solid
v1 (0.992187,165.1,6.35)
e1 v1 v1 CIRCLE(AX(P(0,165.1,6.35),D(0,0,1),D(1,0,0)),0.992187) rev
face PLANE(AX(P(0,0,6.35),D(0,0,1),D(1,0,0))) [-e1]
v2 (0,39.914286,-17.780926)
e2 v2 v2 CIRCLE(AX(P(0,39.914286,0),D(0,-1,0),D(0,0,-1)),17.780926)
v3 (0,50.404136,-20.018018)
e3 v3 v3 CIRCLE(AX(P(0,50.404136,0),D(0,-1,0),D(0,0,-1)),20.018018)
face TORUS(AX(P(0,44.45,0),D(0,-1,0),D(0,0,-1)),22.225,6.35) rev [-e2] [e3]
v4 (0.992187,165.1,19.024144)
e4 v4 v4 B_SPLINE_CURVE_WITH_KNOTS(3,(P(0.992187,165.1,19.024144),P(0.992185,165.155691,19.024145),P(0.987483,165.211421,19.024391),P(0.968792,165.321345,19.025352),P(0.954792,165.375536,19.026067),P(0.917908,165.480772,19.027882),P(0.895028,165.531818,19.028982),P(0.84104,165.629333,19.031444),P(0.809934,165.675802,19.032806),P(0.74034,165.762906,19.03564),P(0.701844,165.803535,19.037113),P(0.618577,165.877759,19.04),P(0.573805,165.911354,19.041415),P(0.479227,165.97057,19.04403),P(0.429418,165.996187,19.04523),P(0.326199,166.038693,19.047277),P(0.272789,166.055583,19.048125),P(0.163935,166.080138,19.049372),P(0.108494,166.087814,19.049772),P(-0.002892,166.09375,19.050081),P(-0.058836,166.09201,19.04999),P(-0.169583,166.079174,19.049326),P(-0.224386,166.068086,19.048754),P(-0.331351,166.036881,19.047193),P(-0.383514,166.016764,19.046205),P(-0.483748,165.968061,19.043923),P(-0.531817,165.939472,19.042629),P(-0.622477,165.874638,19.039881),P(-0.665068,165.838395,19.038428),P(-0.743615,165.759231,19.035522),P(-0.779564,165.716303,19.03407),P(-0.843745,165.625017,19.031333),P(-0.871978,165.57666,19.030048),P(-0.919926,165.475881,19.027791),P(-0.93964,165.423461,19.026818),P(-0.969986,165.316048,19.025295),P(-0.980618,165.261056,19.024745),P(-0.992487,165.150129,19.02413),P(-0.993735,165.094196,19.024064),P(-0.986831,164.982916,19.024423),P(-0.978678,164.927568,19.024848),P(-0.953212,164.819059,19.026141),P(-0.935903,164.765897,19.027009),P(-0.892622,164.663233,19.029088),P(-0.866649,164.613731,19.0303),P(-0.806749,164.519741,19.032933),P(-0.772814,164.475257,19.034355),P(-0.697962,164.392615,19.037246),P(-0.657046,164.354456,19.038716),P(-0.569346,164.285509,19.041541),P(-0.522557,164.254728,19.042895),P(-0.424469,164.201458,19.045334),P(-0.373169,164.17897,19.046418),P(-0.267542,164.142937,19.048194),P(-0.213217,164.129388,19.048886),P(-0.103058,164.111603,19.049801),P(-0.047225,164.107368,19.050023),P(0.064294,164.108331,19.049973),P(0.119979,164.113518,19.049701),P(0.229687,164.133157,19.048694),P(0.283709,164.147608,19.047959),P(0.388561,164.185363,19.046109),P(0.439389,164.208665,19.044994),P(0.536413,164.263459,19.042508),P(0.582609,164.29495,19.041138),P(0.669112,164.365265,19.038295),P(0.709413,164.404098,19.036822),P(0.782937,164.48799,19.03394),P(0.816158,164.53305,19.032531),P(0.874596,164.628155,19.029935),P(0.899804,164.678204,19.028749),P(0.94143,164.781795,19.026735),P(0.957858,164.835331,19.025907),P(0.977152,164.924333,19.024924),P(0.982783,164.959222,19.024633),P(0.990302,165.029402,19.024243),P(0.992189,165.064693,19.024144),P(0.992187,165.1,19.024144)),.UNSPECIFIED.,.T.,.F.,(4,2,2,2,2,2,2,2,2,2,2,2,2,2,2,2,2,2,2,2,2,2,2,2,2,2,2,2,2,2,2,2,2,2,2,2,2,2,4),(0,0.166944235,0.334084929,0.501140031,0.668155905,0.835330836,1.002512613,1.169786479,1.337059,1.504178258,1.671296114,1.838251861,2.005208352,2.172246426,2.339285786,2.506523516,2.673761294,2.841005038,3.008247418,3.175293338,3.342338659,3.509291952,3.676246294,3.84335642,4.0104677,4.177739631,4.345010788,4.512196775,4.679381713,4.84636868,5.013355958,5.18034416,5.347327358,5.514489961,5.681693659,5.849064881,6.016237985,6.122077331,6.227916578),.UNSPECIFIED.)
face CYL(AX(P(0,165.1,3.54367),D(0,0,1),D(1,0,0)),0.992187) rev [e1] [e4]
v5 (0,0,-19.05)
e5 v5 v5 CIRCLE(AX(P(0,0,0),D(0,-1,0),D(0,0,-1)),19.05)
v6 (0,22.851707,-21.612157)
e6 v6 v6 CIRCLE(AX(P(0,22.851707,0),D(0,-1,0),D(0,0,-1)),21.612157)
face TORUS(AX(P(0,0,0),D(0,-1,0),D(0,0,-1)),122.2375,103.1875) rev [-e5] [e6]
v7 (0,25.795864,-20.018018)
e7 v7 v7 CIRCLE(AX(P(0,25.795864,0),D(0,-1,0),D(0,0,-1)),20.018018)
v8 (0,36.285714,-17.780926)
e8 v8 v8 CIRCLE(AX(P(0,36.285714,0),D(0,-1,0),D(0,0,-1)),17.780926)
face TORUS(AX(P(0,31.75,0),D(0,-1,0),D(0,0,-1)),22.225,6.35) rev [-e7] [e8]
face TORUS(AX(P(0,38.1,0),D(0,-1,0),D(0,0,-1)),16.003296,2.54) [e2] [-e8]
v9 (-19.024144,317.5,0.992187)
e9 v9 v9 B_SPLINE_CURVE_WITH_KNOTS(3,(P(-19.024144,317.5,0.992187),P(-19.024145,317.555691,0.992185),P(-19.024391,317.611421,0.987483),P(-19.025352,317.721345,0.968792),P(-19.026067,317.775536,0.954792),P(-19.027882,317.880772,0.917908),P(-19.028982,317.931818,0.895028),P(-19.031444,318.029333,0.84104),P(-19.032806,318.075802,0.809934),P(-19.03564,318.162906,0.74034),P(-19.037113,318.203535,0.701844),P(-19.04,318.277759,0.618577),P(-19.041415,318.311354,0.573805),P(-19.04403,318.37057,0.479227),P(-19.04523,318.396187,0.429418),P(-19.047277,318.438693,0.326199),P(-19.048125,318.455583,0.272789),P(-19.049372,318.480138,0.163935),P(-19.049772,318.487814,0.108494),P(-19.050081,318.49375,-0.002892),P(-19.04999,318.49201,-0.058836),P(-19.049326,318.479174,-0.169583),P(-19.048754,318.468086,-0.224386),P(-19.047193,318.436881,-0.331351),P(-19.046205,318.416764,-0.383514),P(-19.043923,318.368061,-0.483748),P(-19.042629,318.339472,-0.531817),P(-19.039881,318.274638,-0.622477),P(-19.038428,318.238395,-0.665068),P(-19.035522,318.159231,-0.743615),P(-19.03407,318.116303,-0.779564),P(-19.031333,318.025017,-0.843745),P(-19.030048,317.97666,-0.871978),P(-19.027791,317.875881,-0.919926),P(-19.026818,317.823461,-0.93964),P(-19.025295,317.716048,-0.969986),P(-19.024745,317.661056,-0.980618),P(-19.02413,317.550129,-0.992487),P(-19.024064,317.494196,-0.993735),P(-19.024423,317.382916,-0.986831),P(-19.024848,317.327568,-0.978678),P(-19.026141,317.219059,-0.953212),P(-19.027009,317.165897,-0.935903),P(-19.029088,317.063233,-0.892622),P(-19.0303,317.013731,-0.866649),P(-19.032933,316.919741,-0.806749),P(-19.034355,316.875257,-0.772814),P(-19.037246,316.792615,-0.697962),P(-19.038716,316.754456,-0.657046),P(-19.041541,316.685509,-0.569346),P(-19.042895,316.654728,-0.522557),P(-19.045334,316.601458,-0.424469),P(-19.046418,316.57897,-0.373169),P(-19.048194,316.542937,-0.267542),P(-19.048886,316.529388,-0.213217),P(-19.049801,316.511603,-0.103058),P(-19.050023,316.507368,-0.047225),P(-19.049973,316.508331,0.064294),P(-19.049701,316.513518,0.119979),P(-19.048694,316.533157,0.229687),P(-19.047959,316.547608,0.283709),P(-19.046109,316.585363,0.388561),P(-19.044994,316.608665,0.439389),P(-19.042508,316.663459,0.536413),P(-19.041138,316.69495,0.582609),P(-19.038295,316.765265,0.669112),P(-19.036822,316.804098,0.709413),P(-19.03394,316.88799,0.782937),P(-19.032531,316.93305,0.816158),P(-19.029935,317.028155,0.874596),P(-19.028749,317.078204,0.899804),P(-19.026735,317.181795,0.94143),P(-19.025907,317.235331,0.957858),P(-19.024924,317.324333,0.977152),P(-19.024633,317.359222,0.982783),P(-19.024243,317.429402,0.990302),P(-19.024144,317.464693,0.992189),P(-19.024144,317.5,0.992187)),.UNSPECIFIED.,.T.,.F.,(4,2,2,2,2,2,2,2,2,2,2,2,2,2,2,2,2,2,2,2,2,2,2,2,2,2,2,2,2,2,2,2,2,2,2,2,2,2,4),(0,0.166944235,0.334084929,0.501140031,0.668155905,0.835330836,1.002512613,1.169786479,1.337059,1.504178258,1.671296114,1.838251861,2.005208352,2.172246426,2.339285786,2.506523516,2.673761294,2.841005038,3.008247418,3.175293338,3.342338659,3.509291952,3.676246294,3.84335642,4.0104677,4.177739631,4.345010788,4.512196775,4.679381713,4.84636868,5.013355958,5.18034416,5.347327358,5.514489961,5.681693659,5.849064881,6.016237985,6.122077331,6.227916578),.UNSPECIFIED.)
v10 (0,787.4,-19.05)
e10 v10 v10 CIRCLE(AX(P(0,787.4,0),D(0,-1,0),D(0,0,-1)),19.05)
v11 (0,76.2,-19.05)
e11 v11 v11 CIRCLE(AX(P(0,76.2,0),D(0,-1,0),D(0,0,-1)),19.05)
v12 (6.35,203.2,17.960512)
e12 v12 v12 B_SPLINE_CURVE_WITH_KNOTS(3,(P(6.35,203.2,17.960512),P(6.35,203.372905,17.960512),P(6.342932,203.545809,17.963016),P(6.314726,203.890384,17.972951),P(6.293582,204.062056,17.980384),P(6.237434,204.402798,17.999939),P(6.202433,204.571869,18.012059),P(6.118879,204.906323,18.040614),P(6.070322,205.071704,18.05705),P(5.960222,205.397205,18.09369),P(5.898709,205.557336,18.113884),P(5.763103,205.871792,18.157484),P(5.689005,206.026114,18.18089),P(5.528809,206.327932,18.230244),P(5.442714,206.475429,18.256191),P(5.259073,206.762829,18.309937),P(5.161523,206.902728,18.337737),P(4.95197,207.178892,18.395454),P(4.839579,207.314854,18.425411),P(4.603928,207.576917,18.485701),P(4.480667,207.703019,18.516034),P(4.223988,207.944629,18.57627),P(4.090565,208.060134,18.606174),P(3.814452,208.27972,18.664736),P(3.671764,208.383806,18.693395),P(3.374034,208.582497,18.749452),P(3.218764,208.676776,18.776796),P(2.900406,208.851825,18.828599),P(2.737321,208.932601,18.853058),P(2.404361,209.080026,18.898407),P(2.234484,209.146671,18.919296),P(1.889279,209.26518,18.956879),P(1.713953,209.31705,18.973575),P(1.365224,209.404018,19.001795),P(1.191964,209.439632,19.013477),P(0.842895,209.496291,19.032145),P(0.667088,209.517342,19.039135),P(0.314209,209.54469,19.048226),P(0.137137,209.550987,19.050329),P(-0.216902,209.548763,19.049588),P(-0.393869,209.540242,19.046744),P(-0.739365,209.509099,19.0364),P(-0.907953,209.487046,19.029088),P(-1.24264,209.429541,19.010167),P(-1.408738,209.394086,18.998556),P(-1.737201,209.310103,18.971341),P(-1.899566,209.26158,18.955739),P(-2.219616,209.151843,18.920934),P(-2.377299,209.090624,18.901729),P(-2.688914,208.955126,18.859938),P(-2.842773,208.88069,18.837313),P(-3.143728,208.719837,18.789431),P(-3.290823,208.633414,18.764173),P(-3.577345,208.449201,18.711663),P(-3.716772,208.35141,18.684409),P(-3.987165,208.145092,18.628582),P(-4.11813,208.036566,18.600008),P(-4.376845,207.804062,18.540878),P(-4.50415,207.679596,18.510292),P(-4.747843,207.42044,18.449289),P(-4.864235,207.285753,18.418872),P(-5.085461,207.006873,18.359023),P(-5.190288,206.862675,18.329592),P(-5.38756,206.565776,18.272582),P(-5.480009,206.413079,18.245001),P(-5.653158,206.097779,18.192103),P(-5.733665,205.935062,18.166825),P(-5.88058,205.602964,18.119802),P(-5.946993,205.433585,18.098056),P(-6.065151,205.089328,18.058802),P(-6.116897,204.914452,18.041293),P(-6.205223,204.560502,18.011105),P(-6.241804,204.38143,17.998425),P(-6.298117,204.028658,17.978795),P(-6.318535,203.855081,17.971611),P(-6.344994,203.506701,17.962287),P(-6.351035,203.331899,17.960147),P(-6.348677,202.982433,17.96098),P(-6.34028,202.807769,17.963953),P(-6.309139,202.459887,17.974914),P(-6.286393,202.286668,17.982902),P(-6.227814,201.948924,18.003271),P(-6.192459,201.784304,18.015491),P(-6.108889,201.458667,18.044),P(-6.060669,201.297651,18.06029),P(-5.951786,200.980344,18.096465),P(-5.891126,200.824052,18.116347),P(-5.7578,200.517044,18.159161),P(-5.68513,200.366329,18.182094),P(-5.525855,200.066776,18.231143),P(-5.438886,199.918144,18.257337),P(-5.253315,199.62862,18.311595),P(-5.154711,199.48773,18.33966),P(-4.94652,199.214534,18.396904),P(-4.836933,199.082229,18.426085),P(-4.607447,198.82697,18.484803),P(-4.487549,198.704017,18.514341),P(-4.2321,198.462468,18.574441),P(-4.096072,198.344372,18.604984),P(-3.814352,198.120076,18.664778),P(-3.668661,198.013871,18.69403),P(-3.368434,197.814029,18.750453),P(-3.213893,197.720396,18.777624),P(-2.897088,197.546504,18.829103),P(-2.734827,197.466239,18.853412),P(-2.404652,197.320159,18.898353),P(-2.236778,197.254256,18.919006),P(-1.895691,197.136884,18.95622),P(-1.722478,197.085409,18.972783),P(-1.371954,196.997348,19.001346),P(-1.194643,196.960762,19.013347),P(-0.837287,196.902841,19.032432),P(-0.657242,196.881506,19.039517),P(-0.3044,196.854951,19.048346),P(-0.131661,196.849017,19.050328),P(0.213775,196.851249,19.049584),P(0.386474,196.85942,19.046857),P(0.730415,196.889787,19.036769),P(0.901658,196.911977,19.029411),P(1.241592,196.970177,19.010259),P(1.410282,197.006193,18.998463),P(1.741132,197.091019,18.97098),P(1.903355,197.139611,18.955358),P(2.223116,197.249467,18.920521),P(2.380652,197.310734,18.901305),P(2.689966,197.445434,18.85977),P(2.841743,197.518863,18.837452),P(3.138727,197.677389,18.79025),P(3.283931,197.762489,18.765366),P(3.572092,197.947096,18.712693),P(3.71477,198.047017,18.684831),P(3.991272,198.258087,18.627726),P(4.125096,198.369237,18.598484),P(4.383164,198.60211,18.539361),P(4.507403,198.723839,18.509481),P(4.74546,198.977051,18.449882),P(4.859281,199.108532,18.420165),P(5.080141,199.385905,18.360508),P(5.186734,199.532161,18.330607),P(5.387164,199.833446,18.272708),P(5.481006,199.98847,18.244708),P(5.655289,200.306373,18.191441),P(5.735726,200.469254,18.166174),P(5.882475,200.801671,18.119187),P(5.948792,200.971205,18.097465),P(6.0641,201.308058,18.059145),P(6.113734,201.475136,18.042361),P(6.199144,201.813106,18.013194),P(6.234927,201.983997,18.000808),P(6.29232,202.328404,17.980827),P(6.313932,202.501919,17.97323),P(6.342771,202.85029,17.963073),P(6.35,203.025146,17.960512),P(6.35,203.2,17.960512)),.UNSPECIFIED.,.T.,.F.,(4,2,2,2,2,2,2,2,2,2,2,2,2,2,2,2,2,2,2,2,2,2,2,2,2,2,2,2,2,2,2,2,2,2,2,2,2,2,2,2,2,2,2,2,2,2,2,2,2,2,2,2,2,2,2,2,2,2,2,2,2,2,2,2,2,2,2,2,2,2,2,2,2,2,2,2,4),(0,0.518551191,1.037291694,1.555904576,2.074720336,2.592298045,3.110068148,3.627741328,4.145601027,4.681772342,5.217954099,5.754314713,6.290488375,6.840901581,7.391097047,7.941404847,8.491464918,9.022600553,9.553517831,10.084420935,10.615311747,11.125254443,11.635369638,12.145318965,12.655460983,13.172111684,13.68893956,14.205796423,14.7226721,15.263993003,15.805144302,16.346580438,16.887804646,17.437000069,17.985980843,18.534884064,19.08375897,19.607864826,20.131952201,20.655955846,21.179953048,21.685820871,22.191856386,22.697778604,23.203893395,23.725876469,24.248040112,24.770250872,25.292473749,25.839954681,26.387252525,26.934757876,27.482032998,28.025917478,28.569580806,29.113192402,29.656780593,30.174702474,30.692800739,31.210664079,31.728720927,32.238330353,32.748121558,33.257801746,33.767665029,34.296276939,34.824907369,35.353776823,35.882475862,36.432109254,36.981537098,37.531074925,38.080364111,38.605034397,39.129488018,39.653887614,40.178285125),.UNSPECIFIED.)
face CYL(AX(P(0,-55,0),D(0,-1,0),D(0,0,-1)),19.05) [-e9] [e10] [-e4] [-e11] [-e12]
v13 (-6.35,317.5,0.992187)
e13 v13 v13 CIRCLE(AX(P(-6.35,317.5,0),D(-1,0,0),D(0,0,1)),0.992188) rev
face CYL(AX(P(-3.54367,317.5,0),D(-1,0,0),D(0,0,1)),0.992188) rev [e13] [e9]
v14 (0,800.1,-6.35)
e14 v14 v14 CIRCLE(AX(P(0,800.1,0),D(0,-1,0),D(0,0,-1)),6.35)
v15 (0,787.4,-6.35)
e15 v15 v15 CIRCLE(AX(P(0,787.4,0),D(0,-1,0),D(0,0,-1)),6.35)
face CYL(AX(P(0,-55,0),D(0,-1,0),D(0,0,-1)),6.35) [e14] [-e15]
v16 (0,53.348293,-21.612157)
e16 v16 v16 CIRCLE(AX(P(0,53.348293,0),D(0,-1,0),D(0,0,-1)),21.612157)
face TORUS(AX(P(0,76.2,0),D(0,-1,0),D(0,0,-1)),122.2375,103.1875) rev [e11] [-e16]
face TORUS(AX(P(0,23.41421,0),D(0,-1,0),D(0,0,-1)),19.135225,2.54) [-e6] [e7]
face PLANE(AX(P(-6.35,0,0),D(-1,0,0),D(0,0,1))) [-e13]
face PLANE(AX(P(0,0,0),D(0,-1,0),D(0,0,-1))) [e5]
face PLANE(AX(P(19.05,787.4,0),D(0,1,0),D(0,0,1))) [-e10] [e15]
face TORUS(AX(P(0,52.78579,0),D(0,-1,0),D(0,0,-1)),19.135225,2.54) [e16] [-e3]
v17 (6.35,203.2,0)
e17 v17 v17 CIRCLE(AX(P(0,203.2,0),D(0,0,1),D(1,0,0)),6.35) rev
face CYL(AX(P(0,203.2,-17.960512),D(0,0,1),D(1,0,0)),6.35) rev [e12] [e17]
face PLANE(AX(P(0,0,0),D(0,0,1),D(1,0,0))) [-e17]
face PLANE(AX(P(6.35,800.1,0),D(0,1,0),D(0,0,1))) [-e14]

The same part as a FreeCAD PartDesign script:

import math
import FreeCAD as App
import Part
import Sketcher

V = App.Vector
Q = App.Units.Quantity

doc = App.newDocument("Part")
body = doc.addObject("PartDesign::Body", "Body")

# Sketch on XY plane
sketch1 = doc.addObject("Sketcher::SketchObject", "Sketch")
body.addObject(sketch1)
sketch1.AttachmentSupport = (doc.XY_Plane, [""])
sketch1.MapMode = "FlatFace"
sketch1.addGeometry([
    Part.LineSegment(V(0, 0, 0), V(19.1, 0, 0)),  # 0
    Part.ArcOfCircle(Part.Circle(V(122.2, 0, 0), V(0, 0, 1), 103.2), math.radians(167.21), math.radians(180)),  # 1
    Part.ArcOfCircle(Part.Circle(V(19.1, 23.4, 0), V(0, 0, 1), 2.5), math.radians(-13), math.radians(70)),  # 2
    Part.ArcOfCircle(Part.Circle(V(22.2, 31.8, 0), V(0, 0, 1), 6.4), math.radians(180), math.radians(250)),  # 3
    Part.ArcOfCircle(Part.Circle(V(22.2, 31.7, 0), V(0, 0, 1), 6.4), math.radians(134), math.radians(180)),  # 4
    Part.ArcOfCircle(Part.Circle(V(16, 38.1, 0), V(0, 0, 1), 2.5), math.radians(-46), math.radians(46)),  # 5
    Part.ArcOfCircle(Part.Circle(V(22.2, 44.5, 0), V(0, 0, 1), 6.4), math.radians(-180), math.radians(-134)),  # 6
    Part.ArcOfCircle(Part.Circle(V(22.2, 44.5, 0), V(0, 0, 1), 6.4), math.radians(110), math.radians(180)),  # 7
    Part.ArcOfCircle(Part.Circle(V(19.1, 52.8, 0), V(0, 0, 1), 2.5), math.radians(-70), math.radians(13)),  # 8
    Part.ArcOfCircle(Part.Circle(V(122.2, 76.2, 0), V(0, 0, 1), 103.2), math.radians(180), math.radians(192.79)),  # 9
    Part.LineSegment(V(19.1, 76.2, 0), V(19.1, 787.4, 0)),  # 10
    Part.LineSegment(V(19.1, 787.4, 0), V(6.3, 787.4, 0)),  # 11
    Part.LineSegment(V(6.3, 787.4, 0), V(6.3, 800.1, 0)),  # 12
    Part.LineSegment(V(6.3, 800.1, 0), V(0, 800.1, 0)),  # 13
    Part.LineSegment(V(0, 800.1, 0), V(0, 0, 0)),  # 14
], False)
sketch1.addConstraint([
    Sketcher.Constraint("Coincident", 0, 2, 1, 2),
    Sketcher.Constraint("Tangent", 1, 1, 2, 1),
    Sketcher.Constraint("Tangent", 2, 2, 3, 2),
    Sketcher.Constraint("Tangent", 3, 1, 4, 2),
    Sketcher.Constraint("Tangent", 4, 1, 5, 1),
    Sketcher.Constraint("Tangent", 5, 2, 6, 2),
    Sketcher.Constraint("Tangent", 6, 1, 7, 2),
    Sketcher.Constraint("Tangent", 7, 1, 8, 1),
    Sketcher.Constraint("Tangent", 8, 2, 9, 2),
    Sketcher.Constraint("Tangent", 9, 1, 10, 1),
    Sketcher.Constraint("Coincident", 10, 2, 11, 1),
    Sketcher.Constraint("Coincident", 11, 2, 12, 1),
    Sketcher.Constraint("Coincident", 12, 2, 13, 1),
    Sketcher.Constraint("Coincident", 13, 2, 14, 1),
    Sketcher.Constraint("Coincident", 14, 2, 0, 1),
    Sketcher.Constraint("Horizontal", 0),
    Sketcher.Constraint("Vertical", 10),
    Sketcher.Constraint("Horizontal", 11),
    Sketcher.Constraint("Vertical", 12),
    Sketcher.Constraint("Horizontal", 13),
    Sketcher.Constraint("Vertical", 14),
    Sketcher.Constraint("Coincident", 14, 2, -1, 1),
    Sketcher.Constraint("Equal", 3, 4),
    Sketcher.Constraint("Equal", 2, 5),
    Sketcher.Constraint("Equal", 4, 6),
    Sketcher.Constraint("Equal", 6, 7),
    Sketcher.Constraint("Equal", 5, 8),
    Sketcher.Constraint("Equal", 1, 9),
    Sketcher.Constraint("PointOnObject", 1, 3, -1),
    Sketcher.Constraint("Horizontal", 4, 3, 3, 1),
    Sketcher.Constraint("Horizontal", 7, 3, 6, 1),
    Sketcher.Constraint("Vertical", 4, 3, 6, 3),
    Sketcher.Constraint("Vertical", 2, 3, 8, 3),
    Sketcher.Constraint("Vertical", 1, 3, 9, 3),
    Sketcher.Constraint("Equal", 11, 12),
    Sketcher.Constraint("Radius", 2, Q("0.1 in")),
    Sketcher.Constraint("DistanceY", 10, 1, 10, 2, Q("28 in")),
    Sketcher.Constraint("Radius", 3, Q("0.25 in")),
    Sketcher.Constraint("DistanceX", 11, 2, 11, 1, Q("0.5 in")),
    Sketcher.Constraint("DistanceY", 14, 2, 14, 1, Q("31.5 in")),
    Sketcher.Constraint("Radius", 1, Q("4.0625 in")),
    Sketcher.Constraint("DistanceX", 0, 1, 0, 2, Q("0.75 in")),
    Sketcher.Constraint("DistanceY", 3, 3, 6, 3, Q("0.5 in")),
    Sketcher.Constraint("DistanceX", -1, 1, 3, 3, Q("0.875 in")),
])
revolution = doc.addObject("PartDesign::Revolution", "Revolution")
body.addObject(revolution)
revolution.Profile = sketch1
revolution.ReferenceAxis = (sketch1, ["V_Axis"])
revolution.Angle = 360

# Sketch on XY plane
sketch2 = doc.addObject("Sketcher::SketchObject", "Sketch001")
body.addObject(sketch2)
sketch2.AttachmentSupport = (doc.XY_Plane, [""])
sketch2.MapMode = "FlatFace"
sketch2.addGeometry(Part.Circle(V(0, 203, 0), V(0, 0, 1), 6), False)
sketch2.addConstraint([
    Sketcher.Constraint("PointOnObject", 0, 3, -2),
    Sketcher.Constraint("Diameter", 0, Q("0.5 in")),
    Sketcher.Constraint("DistanceY", -1, 1, 0, 3, Q("8 in")),
])
pocket1 = doc.addObject("PartDesign::Pocket", "Pocket")
body.addObject(pocket1)
pocket1.Profile = sketch2
pocket1.Length = Q("0.75 in")
pocket1.Reversed = True

# Sketch on XY plane
sketch3 = doc.addObject("Sketcher::SketchObject", "Sketch002")
body.addObject(sketch3)
sketch3.AttachmentSupport = (doc.XY_Plane, [""])
sketch3.MapMode = "FlatFace"
sketch3.AttachmentOffset = App.Placement(V(0, 0, 0.25 * 25.4), App.Rotation())
sketch3.addGeometry(Part.Circle(V(0, 165.1, 0), V(0, 0, 1), 1), False)
sketch3.addConstraint([
    Sketcher.Constraint("PointOnObject", 0, 3, -2),
    Sketcher.Constraint("Diameter", 0, Q("0.078125 in")),
    Sketcher.Constraint("DistanceY", -1, 1, 0, 3, Q("6.5 in")),
])
pocket2 = doc.addObject("PartDesign::Pocket", "Pocket001")
body.addObject(pocket2)
pocket2.Profile = sketch3
pocket2.Length = Q("0.5 in")
pocket2.Reversed = True

# Sketch on YZ plane
sketch4 = doc.addObject("Sketcher::SketchObject", "Sketch003")
body.addObject(sketch4)
sketch4.AttachmentSupport = (doc.YZ_Plane, [""])
sketch4.MapMode = "FlatFace"
sketch4.AttachmentOffset = App.Placement(V(0, 0, -0.25 * 25.4), App.Rotation())
sketch4.addGeometry(Part.Circle(V(317.5, 0, 0), V(0, 0, 1), 1), False)
sketch4.addConstraint([
    Sketcher.Constraint("PointOnObject", 0, 3, -1),
    Sketcher.Constraint("Diameter", 0, Q("0.078125 in")),
    Sketcher.Constraint("DistanceX", -1, 1, 0, 3, Q("12.5 in")),
])
pocket3 = doc.addObject("PartDesign::Pocket", "Pocket002")
body.addObject(pocket3)
pocket3.Profile = sketch4
pocket3.Length = Q("0.5 in")

doc.recompute()
